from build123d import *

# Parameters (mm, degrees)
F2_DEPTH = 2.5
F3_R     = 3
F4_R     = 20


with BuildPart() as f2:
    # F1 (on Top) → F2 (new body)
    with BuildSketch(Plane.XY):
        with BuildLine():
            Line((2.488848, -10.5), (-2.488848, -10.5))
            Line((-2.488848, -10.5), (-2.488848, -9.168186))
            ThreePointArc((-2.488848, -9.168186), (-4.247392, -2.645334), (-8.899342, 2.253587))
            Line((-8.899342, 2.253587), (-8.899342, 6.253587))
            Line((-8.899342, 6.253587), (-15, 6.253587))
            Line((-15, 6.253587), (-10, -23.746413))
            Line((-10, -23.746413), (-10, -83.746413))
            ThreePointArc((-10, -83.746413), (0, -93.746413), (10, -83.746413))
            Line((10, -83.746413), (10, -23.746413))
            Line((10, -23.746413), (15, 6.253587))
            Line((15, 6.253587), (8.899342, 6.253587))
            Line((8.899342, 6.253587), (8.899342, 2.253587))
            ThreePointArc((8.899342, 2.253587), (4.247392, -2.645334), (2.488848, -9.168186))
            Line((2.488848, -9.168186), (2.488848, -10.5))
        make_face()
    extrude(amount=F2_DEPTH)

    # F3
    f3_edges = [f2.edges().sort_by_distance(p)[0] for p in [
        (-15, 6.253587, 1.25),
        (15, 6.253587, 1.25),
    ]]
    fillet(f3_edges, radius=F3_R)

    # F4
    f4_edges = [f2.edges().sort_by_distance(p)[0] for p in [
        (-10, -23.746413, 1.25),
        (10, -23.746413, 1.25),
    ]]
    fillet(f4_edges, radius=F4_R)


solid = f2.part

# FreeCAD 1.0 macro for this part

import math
import FreeCAD as App
import Part
import Sketcher

V = App.Vector
Q = App.Units.Quantity


def edges_at(feature, points):
    """Names of the edges that pass closest to the given points."""
    edges = feature.Shape.Edges
    near = lambda p: min(range(len(edges)), key=lambda i: edges[i].distToShape(Part.Vertex(*p))[0])
    return sorted({f"Edge{near(p) + 1}" for p in points})

doc = App.newDocument("Part")
body = doc.addObject("PartDesign::Body", "Body")

# Sketch on XY plane
sketch1 = doc.addObject("Sketcher::SketchObject", "Sketch")
body.addObject(sketch1)
sketch1.AttachmentSupport = (doc.XY_Plane, [""])
sketch1.MapMode = "FlatFace"
sketch1.addGeometry([
    Part.LineSegment(V(2.5, -10.5, 0), V(-2.5, -10.5, 0)),  # 0
    Part.LineSegment(V(-2.5, -10.5, 0), V(-2.5, -9.2, 0)),  # 1
    Part.ArcOfCircle(Part.Circle(V(-16.2, -9.4, 0), V(0, 0, 1), 13.8), math.radians(1), math.radians(58)),  # 2
    Part.LineSegment(V(-8.9, 2.3, 0), V(-8.9, 6.3, 0)),  # 3
    Part.LineSegment(V(-8.9, 6.3, 0), V(-15, 6.3, 0)),  # 4
    Part.LineSegment(V(-15, 6.3, 0), V(-10, -23.7, 0)),  # 5
    Part.LineSegment(V(-10, -23.7, 0), V(-10, -83.7, 0)),  # 6
    Part.ArcOfCircle(Part.Circle(V(0, -83.7, 0), V(0, 0, 1), 10), math.radians(180), math.radians(360)),  # 7
    Part.LineSegment(V(10, -83.7, 0), V(10, -23.7, 0)),  # 8
    Part.LineSegment(V(10, -23.7, 0), V(15, 6.3, 0)),  # 9
    Part.LineSegment(V(15, 6.3, 0), V(8.9, 6.3, 0)),  # 10
    Part.LineSegment(V(8.9, 6.3, 0), V(8.9, 2.3, 0)),  # 11
    Part.ArcOfCircle(Part.Circle(V(16.2, -9.4, 0), V(0, 0, 1), 13.8), math.radians(122), math.radians(179)),  # 12
    Part.LineSegment(V(2.5, -9.2, 0), V(2.5, -10.5, 0)),  # 13
], False)
sketch1.addConstraint([
    Sketcher.Constraint("Coincident", 0, 2, 1, 1),
    Sketcher.Constraint("Coincident", 1, 2, 2, 1),
    Sketcher.Constraint("Coincident", 2, 2, 3, 1),
    Sketcher.Constraint("Coincident", 3, 2, 4, 1),
    Sketcher.Constraint("Coincident", 4, 2, 5, 1),
    Sketcher.Constraint("Coincident", 5, 2, 6, 1),
    Sketcher.Constraint("Tangent", 6, 2, 7, 1),
    Sketcher.Constraint("Tangent", 7, 2, 8, 1),
    Sketcher.Constraint("Coincident", 8, 2, 9, 1),
    Sketcher.Constraint("Coincident", 9, 2, 10, 1),
    Sketcher.Constraint("Coincident", 10, 2, 11, 1),
    Sketcher.Constraint("Coincident", 11, 2, 12, 1),
    Sketcher.Constraint("Coincident", 12, 2, 13, 1),
    Sketcher.Constraint("Coincident", 13, 2, 0, 1),
    Sketcher.Constraint("Horizontal", 0),
    Sketcher.Constraint("Vertical", 1),
    Sketcher.Constraint("Vertical", 3),
    Sketcher.Constraint("Horizontal", 4),
    Sketcher.Constraint("Vertical", 6),
    Sketcher.Constraint("Vertical", 8),
    Sketcher.Constraint("Horizontal", 10),
    Sketcher.Constraint("Vertical", 11),
    Sketcher.Constraint("Vertical", 13),
    Sketcher.Constraint("Equal", 2, 12),
    Sketcher.Constraint("Symmetric", 2, 3, 12, 3, -2),
    Sketcher.Constraint("Symmetric", 5, 2, 8, 2, -2),
    Sketcher.Constraint("Symmetric", 4, 2, 9, 2, -2),
    Sketcher.Constraint("Horizontal", 2, 2, 11, 2),
    Sketcher.Constraint("Horizontal", 1, 2, 12, 2),
    Sketcher.Constraint("Radius", 7, Q("10 mm")),
    Sketcher.Constraint("DistanceY", 3, 1, 3, 2, Q("4 mm")),
    Sketcher.Constraint("DistanceY", 6, 2, 6, 1, Q("60 mm")),
    Sketcher.Constraint("DistanceX", 4, 2, -1, 1, Q("15 mm")),
    Sketcher.Constraint("DistanceY", 7, 3, 2, 2, Q("86 mm")),
    Sketcher.Constraint("DistanceY", 0, 2, -1, 1, Q("10.5 mm")),
    Sketcher.Constraint("Radius", 2, Q("13.755404 mm")),
    Sketcher.Constraint("DistanceX", 2, 2, 12, 3, Q("25.141998 mm")),
    Sketcher.Constraint("DistanceY", 2, 3, -1, 1, Q("9.377702 mm")),
    Sketcher.Constraint("DistanceX", 0, 2, 0, 1, Q("4.977696 mm")),
    Sketcher.Constraint("DistanceX", 4, 2, 4, 1, Q("6.100658 mm")),
])
pad1 = doc.addObject("PartDesign::Pad", "Pad")
body.addObject(pad1)
pad1.Profile = sketch1
pad1.Length = 2.5
doc.recompute()

fillet = doc.addObject("PartDesign::Fillet", "Fillet")
body.addObject(fillet)
fillet.Base = (pad1, edges_at(pad1, [(-15, 6.254, 1.25), (15, 6.254, 1.25)]))
fillet.Radius = 3
doc.recompute()

fillet2 = doc.addObject("PartDesign::Fillet", "Fillet001")
body.addObject(fillet2)
fillet2.Base = (fillet, edges_at(fillet, [(-10, -23.746, 1.25), (10, -23.746, 1.25)]))
fillet2.Radius = 20

doc.recompute()
